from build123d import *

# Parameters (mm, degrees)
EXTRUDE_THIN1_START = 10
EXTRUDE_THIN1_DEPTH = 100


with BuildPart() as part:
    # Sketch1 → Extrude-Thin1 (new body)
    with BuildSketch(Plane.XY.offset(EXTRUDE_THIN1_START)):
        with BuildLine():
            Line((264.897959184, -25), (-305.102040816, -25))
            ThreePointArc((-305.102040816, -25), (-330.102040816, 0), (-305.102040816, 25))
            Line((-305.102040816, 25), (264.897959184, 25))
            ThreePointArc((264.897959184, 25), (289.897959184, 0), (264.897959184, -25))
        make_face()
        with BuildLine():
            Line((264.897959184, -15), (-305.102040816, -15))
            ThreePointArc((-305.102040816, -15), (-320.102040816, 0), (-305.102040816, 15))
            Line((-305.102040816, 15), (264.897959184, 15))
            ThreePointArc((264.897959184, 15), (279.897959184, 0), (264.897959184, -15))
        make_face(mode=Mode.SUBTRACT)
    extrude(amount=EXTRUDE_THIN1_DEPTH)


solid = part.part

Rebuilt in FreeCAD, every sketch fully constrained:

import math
import FreeCAD as App
import Part
import Sketcher
from FreeCAD import Vector
Q = App.Units.Quantity

doc = App.newDocument("Part")
params = doc.addObject("Spreadsheet::Sheet", "Params")
for row, (alias, value) in enumerate([
    ("sketch1_radius", "25 mm"),
    ("sketch1_radius2", "15 mm"),
    ("sketch1_width", "570 mm"),
    ("pad1_length", "100 mm"),
], start=1):
    params.set(f"A{row}", alias)
    params.set(f"B{row}", "=" + value)
    params.setAlias(f"B{row}", alias)

body = doc.addObject("PartDesign::Body", "Body")

sketch1 = doc.addObject("Sketcher::SketchObject", "Sketch")
body.addObject(sketch1)
sketch1.AttachmentSupport = (doc.XY_Plane, [""])
sketch1.MapMode = "FlatFace"
sketch1.AttachmentOffset = App.Placement(Vector(0, 0, 10), App.Rotation())
sketch1.addGeometry([
    Part.LineSegment(Vector(-305.102041, -25, 0), Vector(264.897959, -25, 0)),
    Part.ArcOfCircle(Part.Circle(Vector(264.897959, 0, 0), Vector(0, 0, 1), 25), math.radians(-90), math.radians(90)),
    Part.LineSegment(Vector(264.897959, 25, 0), Vector(-305.102041, 25, 0)),
    Part.ArcOfCircle(Part.Circle(Vector(-305.102041, 0, 0), Vector(0, 0, 1), 25), math.radians(90), math.radians(270)),
    Part.LineSegment(Vector(264.897959, -15, 0), Vector(-305.102041, -15, 0)),
    Part.ArcOfCircle(Part.Circle(Vector(-305.102041, 0, 0), Vector(0, 0, 1), 15), math.radians(90), math.radians(270)),
    Part.LineSegment(Vector(-305.102041, 15, 0), Vector(264.897959, 15, 0)),
    Part.ArcOfCircle(Part.Circle(Vector(264.897959, 0, 0), Vector(0, 0, 1), 15), math.radians(-90), math.radians(90)),
], False)
sketch1.addConstraint([
    Sketcher.Constraint("Tangent", 0, 2, 1, 1),
    Sketcher.Constraint("Tangent", 1, 2, 2, 1),
    Sketcher.Constraint("Tangent", 2, 2, 3, 1),
    Sketcher.Constraint("Tangent", 3, 2, 0, 1),
    Sketcher.Constraint("Tangent", 4, 2, 5, 2),
    Sketcher.Constraint("Tangent", 5, 1, 6, 1),
    Sketcher.Constraint("Tangent", 6, 2, 7, 2),
    Sketcher.Constraint("Tangent", 7, 1, 4, 1),
    Sketcher.Constraint("Horizontal", 0),
    Sketcher.Constraint("Horizontal", 2),
    Sketcher.Constraint("Horizontal", 4),
    Sketcher.Constraint("Horizontal", 6),
    Sketcher.Constraint("Coincident", 5, 3, 3, 3),
    Sketcher.Constraint("PointOnObject", 1, 3, -1),
    Sketcher.Constraint("Vertical", 7, 3, 0, 2),
    Sketcher.Constraint("Radius", 1, Q("25 mm")),
    Sketcher.Constraint("Radius", 5, Q("15 mm")),
    Sketcher.Constraint("DistanceX", 0, 1, 0, 2, Q("570 mm")),
    Sketcher.Constraint("DistanceX", -1, 1, 1, 3, Q("264.897959 mm")),
])
sketch1.setExpression("Constraints[15]", "Params.sketch1_radius")
sketch1.setExpression("Constraints[16]", "Params.sketch1_radius2")
sketch1.setExpression("Constraints[17]", "Params.sketch1_width")
pad1 = doc.addObject("PartDesign::Pad", "Pad")
body.addObject(pad1)
pad1.Profile = sketch1
pad1.setExpression("Length", "Params.pad1_length")

doc.recompute()
